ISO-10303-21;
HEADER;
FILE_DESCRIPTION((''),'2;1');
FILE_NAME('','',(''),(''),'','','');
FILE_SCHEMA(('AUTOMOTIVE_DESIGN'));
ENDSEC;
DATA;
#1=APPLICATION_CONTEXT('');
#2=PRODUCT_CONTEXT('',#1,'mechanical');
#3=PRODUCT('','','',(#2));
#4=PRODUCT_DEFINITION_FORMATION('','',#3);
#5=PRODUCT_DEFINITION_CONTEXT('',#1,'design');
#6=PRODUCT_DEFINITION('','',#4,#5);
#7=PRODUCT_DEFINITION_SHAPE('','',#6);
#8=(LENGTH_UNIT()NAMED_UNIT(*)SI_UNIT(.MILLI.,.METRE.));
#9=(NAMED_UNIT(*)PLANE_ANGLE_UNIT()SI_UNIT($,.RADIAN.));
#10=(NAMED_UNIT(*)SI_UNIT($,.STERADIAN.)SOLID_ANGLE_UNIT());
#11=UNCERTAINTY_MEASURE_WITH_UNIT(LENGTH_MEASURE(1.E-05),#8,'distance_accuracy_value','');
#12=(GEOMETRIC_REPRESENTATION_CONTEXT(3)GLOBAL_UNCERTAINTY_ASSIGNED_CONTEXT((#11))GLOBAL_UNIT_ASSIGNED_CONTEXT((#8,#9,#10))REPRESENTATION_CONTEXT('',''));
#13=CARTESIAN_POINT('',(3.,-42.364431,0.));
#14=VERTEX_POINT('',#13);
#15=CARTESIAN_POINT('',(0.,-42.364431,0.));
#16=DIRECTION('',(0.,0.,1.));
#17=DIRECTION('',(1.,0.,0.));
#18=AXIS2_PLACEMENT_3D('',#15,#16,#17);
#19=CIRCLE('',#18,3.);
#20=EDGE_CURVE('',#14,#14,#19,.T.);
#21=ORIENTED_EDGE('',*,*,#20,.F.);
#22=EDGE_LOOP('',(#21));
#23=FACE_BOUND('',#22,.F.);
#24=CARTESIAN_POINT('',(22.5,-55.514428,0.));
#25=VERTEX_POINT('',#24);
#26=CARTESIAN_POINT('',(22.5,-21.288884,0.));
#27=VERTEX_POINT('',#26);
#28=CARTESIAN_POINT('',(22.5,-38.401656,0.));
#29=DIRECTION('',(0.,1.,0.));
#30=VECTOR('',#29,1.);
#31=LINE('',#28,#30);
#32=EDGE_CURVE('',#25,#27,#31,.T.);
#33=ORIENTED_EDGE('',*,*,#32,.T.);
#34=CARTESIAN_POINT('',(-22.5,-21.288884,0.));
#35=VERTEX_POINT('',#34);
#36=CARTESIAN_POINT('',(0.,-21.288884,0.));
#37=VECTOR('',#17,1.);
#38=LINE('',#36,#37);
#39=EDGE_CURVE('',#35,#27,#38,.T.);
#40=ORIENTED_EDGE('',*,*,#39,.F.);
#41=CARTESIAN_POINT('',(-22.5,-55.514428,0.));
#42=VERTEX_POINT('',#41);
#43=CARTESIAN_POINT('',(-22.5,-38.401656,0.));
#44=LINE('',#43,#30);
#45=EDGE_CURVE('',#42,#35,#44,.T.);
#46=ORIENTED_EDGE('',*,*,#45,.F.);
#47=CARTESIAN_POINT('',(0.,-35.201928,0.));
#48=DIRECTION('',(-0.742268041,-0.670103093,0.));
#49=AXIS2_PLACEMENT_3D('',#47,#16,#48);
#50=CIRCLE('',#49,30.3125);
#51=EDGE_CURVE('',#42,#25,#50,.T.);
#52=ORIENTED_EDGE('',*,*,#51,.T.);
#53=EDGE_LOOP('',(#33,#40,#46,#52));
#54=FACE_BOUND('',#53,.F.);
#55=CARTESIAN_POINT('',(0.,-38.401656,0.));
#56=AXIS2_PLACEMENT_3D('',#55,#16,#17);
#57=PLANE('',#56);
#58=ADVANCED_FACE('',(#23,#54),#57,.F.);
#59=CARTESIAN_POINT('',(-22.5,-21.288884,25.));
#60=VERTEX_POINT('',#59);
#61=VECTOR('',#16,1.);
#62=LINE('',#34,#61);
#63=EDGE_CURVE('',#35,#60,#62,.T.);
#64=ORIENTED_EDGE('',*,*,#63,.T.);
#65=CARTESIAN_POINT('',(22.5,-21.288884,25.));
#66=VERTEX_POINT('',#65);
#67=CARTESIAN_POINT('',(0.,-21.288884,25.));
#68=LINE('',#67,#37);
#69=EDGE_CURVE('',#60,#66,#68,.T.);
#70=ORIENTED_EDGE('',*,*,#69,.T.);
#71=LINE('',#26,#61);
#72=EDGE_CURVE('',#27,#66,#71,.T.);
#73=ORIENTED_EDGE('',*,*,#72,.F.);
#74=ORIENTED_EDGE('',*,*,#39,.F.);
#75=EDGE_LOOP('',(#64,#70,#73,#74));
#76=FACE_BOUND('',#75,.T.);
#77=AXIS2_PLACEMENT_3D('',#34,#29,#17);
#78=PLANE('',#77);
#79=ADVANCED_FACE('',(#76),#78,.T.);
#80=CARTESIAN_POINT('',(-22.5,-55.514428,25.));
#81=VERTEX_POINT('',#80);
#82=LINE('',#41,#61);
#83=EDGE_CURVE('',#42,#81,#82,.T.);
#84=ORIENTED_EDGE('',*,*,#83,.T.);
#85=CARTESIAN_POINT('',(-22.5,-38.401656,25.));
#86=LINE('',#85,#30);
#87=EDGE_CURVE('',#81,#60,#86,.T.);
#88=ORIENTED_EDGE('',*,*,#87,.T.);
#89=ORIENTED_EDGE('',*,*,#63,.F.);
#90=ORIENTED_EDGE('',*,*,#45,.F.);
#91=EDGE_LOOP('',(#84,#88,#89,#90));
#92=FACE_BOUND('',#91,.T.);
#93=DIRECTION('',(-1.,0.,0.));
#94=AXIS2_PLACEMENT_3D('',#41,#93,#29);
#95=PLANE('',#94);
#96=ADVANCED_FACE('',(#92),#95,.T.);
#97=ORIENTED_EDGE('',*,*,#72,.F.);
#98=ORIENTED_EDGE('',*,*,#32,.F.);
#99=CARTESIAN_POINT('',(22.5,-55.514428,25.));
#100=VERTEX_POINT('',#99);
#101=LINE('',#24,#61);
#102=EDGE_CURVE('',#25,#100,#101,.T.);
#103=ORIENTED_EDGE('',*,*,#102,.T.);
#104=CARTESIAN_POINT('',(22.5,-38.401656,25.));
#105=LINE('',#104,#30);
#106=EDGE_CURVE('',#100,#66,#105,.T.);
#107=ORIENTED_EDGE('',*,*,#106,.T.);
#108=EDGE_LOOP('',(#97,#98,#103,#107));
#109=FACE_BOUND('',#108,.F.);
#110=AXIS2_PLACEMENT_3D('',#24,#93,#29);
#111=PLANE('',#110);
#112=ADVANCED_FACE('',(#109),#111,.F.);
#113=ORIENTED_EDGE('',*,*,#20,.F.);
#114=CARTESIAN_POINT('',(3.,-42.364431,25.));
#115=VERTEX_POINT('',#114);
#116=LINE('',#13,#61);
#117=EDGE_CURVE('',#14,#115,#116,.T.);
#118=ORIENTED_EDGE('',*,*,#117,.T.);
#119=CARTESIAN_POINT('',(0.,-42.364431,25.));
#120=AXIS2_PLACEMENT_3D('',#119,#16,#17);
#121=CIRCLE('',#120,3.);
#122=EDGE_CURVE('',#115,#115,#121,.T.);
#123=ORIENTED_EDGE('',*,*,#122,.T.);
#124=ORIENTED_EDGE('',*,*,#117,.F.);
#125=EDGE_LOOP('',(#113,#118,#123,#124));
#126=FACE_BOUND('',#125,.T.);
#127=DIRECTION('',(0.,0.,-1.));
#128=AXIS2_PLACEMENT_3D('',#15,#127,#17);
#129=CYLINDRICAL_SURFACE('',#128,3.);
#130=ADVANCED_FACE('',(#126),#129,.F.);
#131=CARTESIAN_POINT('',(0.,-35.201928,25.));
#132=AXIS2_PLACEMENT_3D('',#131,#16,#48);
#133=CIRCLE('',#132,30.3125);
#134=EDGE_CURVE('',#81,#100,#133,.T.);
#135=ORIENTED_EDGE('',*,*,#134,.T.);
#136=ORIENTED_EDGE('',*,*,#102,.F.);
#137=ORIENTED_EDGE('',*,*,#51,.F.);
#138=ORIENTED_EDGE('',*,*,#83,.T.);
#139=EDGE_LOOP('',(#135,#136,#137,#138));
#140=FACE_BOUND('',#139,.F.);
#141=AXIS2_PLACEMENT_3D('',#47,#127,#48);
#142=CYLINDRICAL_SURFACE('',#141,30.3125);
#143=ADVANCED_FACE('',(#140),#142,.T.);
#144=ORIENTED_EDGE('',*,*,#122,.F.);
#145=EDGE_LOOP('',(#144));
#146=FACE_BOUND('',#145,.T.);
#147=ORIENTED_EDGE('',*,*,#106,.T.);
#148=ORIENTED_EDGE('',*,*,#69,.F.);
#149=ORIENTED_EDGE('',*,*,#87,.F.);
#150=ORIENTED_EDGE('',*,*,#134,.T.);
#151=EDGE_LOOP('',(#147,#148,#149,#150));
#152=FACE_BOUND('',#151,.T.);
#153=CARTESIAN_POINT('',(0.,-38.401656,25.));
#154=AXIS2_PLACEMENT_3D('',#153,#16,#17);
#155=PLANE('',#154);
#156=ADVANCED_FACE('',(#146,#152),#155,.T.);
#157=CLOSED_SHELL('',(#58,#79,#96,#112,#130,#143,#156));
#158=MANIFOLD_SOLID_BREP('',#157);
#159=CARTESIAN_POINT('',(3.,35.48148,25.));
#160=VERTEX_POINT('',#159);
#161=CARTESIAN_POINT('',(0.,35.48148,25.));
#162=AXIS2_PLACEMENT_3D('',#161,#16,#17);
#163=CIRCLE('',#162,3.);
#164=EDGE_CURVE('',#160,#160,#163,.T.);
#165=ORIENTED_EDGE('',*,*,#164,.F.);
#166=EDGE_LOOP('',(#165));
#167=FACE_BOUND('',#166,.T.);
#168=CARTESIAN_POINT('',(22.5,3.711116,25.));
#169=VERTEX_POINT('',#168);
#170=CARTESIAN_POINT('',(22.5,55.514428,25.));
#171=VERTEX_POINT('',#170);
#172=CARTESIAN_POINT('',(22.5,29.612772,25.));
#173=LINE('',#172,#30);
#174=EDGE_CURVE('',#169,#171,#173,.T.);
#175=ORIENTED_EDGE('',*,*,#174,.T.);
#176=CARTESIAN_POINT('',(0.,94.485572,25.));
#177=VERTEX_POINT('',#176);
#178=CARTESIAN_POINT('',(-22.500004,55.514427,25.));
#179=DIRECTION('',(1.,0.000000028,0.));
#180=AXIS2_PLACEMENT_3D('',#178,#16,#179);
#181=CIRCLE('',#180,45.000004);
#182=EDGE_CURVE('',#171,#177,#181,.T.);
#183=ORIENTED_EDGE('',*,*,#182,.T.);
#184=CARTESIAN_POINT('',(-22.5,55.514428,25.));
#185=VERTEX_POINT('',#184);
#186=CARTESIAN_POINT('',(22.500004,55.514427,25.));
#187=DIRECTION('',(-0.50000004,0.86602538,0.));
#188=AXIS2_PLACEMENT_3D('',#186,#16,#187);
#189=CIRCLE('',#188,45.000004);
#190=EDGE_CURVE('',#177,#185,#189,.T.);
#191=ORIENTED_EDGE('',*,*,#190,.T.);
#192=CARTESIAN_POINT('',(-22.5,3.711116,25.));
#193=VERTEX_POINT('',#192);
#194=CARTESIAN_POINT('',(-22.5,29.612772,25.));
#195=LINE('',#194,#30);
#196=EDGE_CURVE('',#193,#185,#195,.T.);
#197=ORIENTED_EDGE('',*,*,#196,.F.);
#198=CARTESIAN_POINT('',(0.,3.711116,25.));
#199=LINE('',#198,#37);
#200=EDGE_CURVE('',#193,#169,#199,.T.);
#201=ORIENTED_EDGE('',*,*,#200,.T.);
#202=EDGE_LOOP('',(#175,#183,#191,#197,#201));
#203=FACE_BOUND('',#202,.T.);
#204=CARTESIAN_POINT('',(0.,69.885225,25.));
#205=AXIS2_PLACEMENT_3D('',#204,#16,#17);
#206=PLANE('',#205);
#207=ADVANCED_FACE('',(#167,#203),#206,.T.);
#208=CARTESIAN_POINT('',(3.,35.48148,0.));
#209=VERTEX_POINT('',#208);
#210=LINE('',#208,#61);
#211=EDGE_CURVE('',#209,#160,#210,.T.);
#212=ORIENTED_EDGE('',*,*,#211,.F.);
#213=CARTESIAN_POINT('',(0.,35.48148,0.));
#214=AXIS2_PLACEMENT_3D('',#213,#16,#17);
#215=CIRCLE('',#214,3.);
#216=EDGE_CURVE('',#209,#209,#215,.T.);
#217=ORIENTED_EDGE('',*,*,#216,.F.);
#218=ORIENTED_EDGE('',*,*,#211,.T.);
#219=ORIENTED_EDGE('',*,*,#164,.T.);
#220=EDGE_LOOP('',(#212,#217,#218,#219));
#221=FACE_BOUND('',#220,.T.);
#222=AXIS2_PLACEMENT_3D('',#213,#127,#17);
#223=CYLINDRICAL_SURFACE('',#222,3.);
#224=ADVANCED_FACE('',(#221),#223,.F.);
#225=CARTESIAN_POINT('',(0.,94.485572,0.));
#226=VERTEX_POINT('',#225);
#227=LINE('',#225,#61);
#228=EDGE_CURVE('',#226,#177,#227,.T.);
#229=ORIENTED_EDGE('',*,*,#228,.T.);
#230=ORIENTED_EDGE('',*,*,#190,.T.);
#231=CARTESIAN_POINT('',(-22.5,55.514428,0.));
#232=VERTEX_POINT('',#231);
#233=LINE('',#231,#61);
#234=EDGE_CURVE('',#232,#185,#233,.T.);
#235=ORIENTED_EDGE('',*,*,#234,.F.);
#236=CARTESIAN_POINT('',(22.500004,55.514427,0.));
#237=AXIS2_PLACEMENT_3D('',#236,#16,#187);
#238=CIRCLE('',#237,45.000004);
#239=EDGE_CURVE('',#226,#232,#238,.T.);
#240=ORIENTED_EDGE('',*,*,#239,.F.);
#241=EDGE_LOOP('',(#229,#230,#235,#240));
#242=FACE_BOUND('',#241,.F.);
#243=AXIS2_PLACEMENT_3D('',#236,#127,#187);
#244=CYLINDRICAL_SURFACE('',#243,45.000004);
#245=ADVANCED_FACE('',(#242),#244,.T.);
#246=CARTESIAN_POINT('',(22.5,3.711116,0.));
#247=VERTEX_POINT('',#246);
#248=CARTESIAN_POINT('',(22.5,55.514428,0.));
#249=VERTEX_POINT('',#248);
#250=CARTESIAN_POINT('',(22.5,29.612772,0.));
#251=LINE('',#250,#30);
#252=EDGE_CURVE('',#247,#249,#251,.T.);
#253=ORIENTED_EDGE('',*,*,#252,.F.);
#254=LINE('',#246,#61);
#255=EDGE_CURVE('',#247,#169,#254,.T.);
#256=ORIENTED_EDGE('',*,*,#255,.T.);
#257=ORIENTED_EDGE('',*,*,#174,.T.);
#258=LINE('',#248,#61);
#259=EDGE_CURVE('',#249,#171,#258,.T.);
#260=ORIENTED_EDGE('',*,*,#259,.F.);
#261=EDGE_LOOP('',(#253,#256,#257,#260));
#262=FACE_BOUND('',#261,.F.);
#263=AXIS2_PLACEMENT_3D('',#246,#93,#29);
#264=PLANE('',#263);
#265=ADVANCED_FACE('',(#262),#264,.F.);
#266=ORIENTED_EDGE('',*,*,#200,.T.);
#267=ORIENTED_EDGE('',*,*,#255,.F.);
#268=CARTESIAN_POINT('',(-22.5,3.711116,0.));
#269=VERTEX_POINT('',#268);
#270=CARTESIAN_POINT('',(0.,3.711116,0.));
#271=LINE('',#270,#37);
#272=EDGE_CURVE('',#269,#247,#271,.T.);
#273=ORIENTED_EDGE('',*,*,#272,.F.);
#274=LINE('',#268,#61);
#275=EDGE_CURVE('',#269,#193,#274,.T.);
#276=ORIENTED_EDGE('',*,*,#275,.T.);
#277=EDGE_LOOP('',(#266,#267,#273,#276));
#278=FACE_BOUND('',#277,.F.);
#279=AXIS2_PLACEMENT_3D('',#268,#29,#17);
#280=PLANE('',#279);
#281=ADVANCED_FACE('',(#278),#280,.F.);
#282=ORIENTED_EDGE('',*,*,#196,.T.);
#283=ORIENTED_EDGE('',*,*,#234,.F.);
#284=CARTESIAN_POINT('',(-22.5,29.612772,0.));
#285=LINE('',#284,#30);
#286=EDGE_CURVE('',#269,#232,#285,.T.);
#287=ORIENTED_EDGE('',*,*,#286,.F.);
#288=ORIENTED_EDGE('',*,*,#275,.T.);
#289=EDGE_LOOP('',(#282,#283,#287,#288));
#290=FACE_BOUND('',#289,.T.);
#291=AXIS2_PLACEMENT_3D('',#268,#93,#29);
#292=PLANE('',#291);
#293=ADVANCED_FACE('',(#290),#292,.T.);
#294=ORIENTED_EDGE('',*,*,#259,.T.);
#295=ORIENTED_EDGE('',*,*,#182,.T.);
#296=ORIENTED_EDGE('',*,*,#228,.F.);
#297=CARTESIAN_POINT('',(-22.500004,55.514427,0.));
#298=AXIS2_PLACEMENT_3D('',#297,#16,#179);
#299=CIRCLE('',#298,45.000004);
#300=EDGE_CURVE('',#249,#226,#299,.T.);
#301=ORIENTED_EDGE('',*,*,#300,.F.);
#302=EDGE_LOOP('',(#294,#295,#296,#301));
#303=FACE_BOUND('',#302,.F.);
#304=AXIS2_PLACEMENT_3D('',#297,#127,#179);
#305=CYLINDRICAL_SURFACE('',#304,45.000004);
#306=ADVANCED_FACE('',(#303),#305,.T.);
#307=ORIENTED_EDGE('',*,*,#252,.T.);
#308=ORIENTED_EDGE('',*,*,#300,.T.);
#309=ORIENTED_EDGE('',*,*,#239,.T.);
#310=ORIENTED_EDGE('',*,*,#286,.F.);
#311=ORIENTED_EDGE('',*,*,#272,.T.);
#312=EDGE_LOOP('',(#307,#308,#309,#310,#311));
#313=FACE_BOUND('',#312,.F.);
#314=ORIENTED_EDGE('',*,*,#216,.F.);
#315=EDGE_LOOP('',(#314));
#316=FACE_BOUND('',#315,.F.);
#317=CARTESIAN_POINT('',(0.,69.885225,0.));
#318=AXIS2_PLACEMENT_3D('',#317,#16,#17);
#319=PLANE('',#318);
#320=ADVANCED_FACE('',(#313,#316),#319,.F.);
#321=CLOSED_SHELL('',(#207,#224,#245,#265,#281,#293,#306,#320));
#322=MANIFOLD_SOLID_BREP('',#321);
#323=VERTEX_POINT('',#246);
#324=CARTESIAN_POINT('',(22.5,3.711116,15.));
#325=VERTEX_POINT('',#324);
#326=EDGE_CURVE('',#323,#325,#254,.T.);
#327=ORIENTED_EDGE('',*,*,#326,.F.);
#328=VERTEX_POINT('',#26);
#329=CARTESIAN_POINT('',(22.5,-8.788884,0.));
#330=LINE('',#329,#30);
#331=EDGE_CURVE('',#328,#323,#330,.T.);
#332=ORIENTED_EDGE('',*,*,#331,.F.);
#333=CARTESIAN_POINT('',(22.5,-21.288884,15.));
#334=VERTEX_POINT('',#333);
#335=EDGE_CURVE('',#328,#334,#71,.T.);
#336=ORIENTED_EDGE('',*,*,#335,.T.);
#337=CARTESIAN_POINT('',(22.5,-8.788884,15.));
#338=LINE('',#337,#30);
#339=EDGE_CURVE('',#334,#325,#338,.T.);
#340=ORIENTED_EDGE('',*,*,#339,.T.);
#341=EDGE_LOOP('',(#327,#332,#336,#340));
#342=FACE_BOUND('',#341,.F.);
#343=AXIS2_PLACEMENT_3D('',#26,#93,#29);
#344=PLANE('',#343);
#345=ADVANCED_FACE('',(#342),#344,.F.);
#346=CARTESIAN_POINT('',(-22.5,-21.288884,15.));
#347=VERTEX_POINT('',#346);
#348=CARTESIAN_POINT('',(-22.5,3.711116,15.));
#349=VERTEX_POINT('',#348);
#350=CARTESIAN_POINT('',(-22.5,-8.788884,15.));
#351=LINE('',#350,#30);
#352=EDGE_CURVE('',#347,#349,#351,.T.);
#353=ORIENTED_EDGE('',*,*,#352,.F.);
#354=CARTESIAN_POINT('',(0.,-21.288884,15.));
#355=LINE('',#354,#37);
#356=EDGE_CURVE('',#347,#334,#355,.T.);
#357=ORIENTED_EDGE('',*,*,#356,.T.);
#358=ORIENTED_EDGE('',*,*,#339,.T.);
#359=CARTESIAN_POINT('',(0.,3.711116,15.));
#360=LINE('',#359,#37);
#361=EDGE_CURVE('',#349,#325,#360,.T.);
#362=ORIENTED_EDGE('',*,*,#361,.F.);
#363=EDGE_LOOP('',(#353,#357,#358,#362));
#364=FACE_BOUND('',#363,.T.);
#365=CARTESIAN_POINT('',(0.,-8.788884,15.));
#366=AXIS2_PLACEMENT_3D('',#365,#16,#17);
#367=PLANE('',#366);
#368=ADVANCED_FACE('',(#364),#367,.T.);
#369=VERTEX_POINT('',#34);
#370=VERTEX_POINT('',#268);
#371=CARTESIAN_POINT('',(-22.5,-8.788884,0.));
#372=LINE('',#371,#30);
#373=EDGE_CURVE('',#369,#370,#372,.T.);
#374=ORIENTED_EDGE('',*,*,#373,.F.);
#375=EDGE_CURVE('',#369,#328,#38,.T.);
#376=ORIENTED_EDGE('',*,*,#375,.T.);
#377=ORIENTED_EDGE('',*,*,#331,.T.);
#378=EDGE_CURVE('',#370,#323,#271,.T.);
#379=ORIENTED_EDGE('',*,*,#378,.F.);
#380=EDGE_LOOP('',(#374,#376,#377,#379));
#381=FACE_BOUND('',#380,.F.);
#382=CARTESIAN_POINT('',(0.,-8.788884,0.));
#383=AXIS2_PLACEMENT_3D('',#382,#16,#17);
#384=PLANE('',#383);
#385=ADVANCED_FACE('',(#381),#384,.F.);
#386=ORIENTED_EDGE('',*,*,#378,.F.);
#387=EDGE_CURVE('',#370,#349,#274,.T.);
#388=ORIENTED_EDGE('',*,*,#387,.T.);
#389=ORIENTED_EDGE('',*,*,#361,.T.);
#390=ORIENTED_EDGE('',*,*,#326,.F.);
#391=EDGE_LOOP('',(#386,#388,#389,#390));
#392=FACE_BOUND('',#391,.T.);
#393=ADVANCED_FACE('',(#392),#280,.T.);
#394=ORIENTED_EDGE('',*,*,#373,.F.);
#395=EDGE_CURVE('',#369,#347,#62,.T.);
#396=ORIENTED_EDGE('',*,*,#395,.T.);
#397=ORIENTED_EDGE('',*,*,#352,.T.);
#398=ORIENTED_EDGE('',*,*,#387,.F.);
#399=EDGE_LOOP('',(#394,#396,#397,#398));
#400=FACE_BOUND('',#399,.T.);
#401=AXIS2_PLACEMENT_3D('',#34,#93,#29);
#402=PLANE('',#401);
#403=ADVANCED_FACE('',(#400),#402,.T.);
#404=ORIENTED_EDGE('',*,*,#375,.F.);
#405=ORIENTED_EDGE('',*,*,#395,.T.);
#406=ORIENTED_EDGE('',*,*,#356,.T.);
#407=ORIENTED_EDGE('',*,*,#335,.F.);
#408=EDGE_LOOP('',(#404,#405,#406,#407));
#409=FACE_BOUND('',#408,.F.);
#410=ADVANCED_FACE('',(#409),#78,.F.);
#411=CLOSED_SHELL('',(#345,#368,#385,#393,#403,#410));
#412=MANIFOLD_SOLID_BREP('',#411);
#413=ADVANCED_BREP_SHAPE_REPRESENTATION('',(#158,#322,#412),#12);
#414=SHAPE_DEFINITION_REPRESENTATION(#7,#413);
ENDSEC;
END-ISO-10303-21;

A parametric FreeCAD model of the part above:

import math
import FreeCAD as App
import Part
import Sketcher
Q = App.Units.Quantity

doc = App.newDocument("Part")
body = doc.addObject("PartDesign::Body", "Body")
body.AllowCompound = True

sketch1 = body.newObject("Sketcher::SketchObject", "Sketch")
sketch1.AttachmentSupport = (doc.getObject("XY_Plane"), [""])
sketch1.MapMode = "FlatFace"
sketch1.addGeometry([
    Part.ArcOfCircle(Part.Circle(App.Vector(22.5, 55.5, 0), App.Vector(0, 0, 1), 45), math.radians(120), math.radians(180)),
    Part.LineSegment(App.Vector(-22.5, 55.5, 0), App.Vector(-22.5, 3.7, 0)),
    Part.LineSegment(App.Vector(-22.5, 3.7, 0), App.Vector(22.5, 3.7, 0)),
    Part.LineSegment(App.Vector(22.5, 3.7, 0), App.Vector(22.5, 55.5, 0)),
    Part.ArcOfCircle(Part.Circle(App.Vector(-22.5, 55.5, 0), App.Vector(0, 0, 1), 45), math.radians(0), math.radians(60)),
    Part.Circle(App.Vector(0, 35.5, 0), App.Vector(0, 0, 1), 3),
    Part.LineSegment(App.Vector(-22.5, -21.3, 0), App.Vector(-22.5, -55.5, 0)),
    Part.ArcOfCircle(Part.Circle(App.Vector(0, -35.2, 0), App.Vector(0, 0, 1), 30.3), math.radians(-138), math.radians(-42)),
    Part.LineSegment(App.Vector(22.5, -55.5, 0), App.Vector(22.5, -21.3, 0)),
    Part.LineSegment(App.Vector(22.5, -21.3, 0), App.Vector(-22.5, -21.3, 0)),
    Part.Circle(App.Vector(0, -42.4, 0), App.Vector(0, 0, 1), 3),
], False)
sketch1.addConstraint([
    Sketcher.Constraint("Tangent", 0, 2, 1, 1),
    Sketcher.Constraint("Coincident", 1, 2, 2, 1),
    Sketcher.Constraint("Coincident", 2, 2, 3, 1),
    Sketcher.Constraint("Tangent", 3, 2, 4, 1),
    Sketcher.Constraint("Coincident", 4, 2, 0, 1),
    Sketcher.Constraint("Coincident", 6, 2, 7, 1),
    Sketcher.Constraint("Coincident", 7, 2, 8, 1),
    Sketcher.Constraint("Coincident", 8, 2, 9, 1),
    Sketcher.Constraint("Coincident", 9, 2, 6, 1),
    Sketcher.Constraint("Vertical", 1),
    Sketcher.Constraint("Horizontal", 2),
    Sketcher.Constraint("Vertical", 3),
    Sketcher.Constraint("Vertical", 6),
    Sketcher.Constraint("Vertical", 8),
    Sketcher.Constraint("Horizontal", 9),
    Sketcher.Constraint("Coincident", 0, 2, 4, 3),
    Sketcher.Constraint("Equal", 0, 4),
    Sketcher.Constraint("Equal", 5, 10),
    Sketcher.Constraint("Symmetric", 3, 2, 6, 2, -1, 1),
    Sketcher.Constraint("Symmetric", 0, 2, 7, 2, -1, 1),
    Sketcher.Constraint("PointOnObject", 5, 3, -2),
    Sketcher.Constraint("PointOnObject", 7, 3, -2),
    Sketcher.Constraint("PointOnObject", 10, 3, -2),
    Sketcher.Constraint("Diameter", 5, Q("6 mm")),
    Sketcher.Constraint("DistanceX", 2, 1, 2, 2, Q("45 mm")),
    Sketcher.Constraint("DistanceY", 8, 2, 2, 2, Q("25 mm")),
    Sketcher.Constraint("Radius", 7, Q("30.3125 mm")),
    Sketcher.Constraint("DistanceY", 1, 2, 1, 1, Q("51.803312 mm")),
    Sketcher.Constraint("DistanceY", 6, 2, 6, 1, Q("34.225544 mm")),
    Sketcher.Constraint("DistanceY", -1, 1, 5, 3, Q("35.48148 mm")),
    Sketcher.Constraint("DistanceY", 10, 3, -1, 1, Q("42.364431 mm")),
])
pad1 = body.newObject("PartDesign::Pad", "Pad")
pad1.Profile = sketch1
pad1.Length = 25
body2 = doc.addObject("PartDesign::Body", "Body001")

sketch2 = body2.newObject("Sketcher::SketchObject", "Sketch001")
sketch2.AttachmentSupport = (doc.getObject("XY_Plane001"), [""])
sketch2.MapMode = "FlatFace"
sketch2.addGeometry([
    Part.LineSegment(App.Vector(-22, 4, 0), App.Vector(-22, -21, 0)),
    Part.LineSegment(App.Vector(-22, -21, 0), App.Vector(22, -21, 0)),
    Part.LineSegment(App.Vector(22, -21, 0), App.Vector(22, 4, 0)),
    Part.LineSegment(App.Vector(22, 4, 0), App.Vector(-22, 4, 0)),
], False)
sketch2.addConstraint([
    Sketcher.Constraint("Coincident", 0, 2, 1, 1),
    Sketcher.Constraint("Coincident", 1, 2, 2, 1),
    Sketcher.Constraint("Coincident", 2, 2, 3, 1),
    Sketcher.Constraint("Coincident", 3, 2, 0, 1),
    Sketcher.Constraint("Vertical", 0),
    Sketcher.Constraint("Horizontal", 1),
    Sketcher.Constraint("Vertical", 2),
    Sketcher.Constraint("Horizontal", 3),
    Sketcher.Constraint("DistanceX", 1, 1, 1, 2, Q("45 mm")),
    Sketcher.Constraint("DistanceY", 0, 2, 0, 1, Q("25 mm")),
    Sketcher.Constraint("DistanceX", 0, 2, -1, 1, Q("22.5 mm")),
    Sketcher.Constraint("DistanceY", 0, 2, -1, 1, Q("21.288884 mm")),
])
pad2 = body2.newObject("PartDesign::Pad", "Pad001")
pad2.Profile = sketch2
pad2.Length = 15

doc.recompute()
